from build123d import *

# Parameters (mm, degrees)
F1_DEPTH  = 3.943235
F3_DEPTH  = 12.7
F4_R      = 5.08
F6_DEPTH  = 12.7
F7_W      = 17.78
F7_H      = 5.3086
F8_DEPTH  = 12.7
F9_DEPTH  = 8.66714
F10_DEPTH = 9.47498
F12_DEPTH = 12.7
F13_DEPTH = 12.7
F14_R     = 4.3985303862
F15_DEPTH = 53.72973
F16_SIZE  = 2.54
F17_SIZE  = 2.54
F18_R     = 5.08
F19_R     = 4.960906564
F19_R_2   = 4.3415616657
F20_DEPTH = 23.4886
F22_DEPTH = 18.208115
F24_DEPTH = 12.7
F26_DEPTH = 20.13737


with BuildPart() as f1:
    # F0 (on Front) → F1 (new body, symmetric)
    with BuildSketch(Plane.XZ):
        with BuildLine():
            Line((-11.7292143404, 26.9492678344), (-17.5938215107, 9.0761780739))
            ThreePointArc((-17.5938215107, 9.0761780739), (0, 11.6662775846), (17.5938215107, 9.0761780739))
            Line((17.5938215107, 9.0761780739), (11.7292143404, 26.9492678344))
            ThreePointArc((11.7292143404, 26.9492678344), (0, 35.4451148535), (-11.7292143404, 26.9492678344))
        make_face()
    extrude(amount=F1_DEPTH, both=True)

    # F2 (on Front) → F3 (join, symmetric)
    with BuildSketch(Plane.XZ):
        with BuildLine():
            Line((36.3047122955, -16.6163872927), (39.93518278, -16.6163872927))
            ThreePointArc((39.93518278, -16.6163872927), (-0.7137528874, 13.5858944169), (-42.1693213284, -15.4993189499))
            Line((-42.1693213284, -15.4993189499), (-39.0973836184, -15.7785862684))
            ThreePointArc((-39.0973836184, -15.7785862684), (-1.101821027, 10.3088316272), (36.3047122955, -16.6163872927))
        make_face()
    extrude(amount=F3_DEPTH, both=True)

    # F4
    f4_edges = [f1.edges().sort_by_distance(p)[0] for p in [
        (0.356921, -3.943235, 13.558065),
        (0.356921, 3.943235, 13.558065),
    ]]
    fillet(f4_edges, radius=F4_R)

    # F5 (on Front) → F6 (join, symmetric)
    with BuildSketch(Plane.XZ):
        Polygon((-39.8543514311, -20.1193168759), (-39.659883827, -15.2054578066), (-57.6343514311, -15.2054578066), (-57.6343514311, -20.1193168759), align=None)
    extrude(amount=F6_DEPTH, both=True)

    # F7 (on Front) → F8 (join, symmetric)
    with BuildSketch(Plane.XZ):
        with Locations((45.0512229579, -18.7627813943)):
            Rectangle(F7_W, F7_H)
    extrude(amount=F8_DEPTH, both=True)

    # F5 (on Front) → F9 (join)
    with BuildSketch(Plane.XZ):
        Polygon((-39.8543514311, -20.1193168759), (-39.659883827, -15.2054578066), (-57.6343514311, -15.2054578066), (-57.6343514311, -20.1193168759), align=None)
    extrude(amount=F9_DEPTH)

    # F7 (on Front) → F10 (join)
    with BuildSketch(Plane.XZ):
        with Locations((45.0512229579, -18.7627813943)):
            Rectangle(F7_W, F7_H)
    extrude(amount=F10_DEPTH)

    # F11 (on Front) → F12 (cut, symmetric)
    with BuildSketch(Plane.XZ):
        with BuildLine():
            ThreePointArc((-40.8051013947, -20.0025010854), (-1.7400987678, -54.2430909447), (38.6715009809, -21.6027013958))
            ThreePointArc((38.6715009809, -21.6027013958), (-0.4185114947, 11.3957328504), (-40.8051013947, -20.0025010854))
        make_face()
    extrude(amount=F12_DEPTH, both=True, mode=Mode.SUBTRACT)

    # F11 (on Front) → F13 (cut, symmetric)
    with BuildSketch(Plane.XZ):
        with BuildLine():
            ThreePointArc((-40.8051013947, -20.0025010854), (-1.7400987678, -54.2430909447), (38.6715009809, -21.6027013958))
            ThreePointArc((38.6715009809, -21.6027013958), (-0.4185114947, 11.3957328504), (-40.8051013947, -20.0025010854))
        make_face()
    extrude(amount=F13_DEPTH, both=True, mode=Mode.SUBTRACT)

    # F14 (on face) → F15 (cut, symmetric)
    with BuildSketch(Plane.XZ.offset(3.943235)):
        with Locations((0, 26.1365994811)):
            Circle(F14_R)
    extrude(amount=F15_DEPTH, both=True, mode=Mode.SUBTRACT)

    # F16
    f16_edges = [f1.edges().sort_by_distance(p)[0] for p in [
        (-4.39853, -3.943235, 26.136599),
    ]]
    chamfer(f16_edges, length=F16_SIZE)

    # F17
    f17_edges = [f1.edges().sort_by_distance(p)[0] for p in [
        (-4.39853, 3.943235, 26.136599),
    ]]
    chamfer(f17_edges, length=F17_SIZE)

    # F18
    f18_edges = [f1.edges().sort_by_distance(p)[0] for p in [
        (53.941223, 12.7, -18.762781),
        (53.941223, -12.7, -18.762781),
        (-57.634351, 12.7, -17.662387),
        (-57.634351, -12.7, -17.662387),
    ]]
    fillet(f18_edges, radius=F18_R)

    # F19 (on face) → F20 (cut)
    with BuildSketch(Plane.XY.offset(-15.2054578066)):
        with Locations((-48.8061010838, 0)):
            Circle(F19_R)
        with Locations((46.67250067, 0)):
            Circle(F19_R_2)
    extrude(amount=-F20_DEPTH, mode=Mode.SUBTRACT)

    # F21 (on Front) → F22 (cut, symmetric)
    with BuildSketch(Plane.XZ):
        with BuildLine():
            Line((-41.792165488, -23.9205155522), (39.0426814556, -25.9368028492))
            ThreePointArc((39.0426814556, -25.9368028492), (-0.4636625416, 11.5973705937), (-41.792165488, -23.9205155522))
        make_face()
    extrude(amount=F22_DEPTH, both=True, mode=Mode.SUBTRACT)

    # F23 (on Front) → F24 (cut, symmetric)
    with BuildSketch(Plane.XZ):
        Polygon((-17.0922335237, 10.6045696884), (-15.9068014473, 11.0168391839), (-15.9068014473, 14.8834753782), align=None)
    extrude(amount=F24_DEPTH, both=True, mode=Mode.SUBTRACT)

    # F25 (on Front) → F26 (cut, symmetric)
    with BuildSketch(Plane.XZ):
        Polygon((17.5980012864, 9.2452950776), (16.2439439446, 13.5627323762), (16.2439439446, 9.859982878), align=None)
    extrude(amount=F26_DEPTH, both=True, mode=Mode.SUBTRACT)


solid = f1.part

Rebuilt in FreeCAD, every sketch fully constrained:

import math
import FreeCAD as App
import Part
import Sketcher

V = App.Vector
Q = App.Units.Quantity


def edges_at(feature, points):
    """Names of the edges that pass closest to the given points."""
    edges = feature.Shape.Edges
    near = lambda p: min(range(len(edges)), key=lambda i: edges[i].distToShape(Part.Vertex(*p))[0])
    return sorted({f"Edge{near(p) + 1}" for p in points})


def add_polygon(sketch, points):
    """Adds a closed chain of lines whose ends are joined by coincident constraints."""
    first, n = sketch.GeometryCount, len(points)
    for a, b in zip(points, points[1:] + points[:1]):
        sketch.addGeometry(Part.LineSegment(App.Vector(*a, 0), App.Vector(*b, 0)), False)
    for i in range(n):
        sketch.addConstraint(Sketcher.Constraint("Coincident", first + i, 2, first + (i + 1) % n, 1))

doc = App.newDocument("Part")
body = doc.addObject("PartDesign::Body", "Body")

sketch1 = doc.addObject("Sketcher::SketchObject", "Sketch")
body.addObject(sketch1)
sketch1.AttachmentSupport = (doc.XZ_Plane, [""])
sketch1.MapMode = "FlatFace"
sketch1.addGeometry([
    Part.LineSegment(V(-12, 27, 0), V(-18, 9, 0)),
    Part.ArcOfCircle(Part.Circle(V(0, -49, 0), V(0, 0, 1), 61), math.radians(73), math.radians(107)),
    Part.LineSegment(V(18, 9, 0), V(12, 27, 0)),
    Part.ArcOfCircle(Part.Circle(V(0, 23, 0), V(0, 0, 1), 12), math.radians(18), math.radians(162)),
], False)
sketch1.addConstraint([
    Sketcher.Constraint("Coincident", 0, 2, 1, 2),
    Sketcher.Constraint("Coincident", 1, 1, 2, 1),
    Sketcher.Constraint("Tangent", 2, 2, 3, 1),
    Sketcher.Constraint("Tangent", 3, 2, 0, 1),
    Sketcher.Constraint("Symmetric", 0, 2, 1, 1, -2),
    Sketcher.Constraint("PointOnObject", 3, 3, -2),
    Sketcher.Constraint("Radius", 1, Q("61.050004 mm")),
    Sketcher.Constraint("Radius", 3, Q("12.344495 mm")),
    Sketcher.Constraint("Distance", 0, Q("18.810661 mm")),
    Sketcher.Constraint("DistanceY", -1, 1, 3, 3, Q("23.10062 mm")),
    Sketcher.Constraint("DistanceX", 0, 2, -1, 1, Q("17.593822 mm")),
])
pad1 = doc.addObject("PartDesign::Pad", "Pad")
body.addObject(pad1)
pad1.Profile = sketch1
pad1.Length = 7.88647
pad1.Midplane = True

sketch2 = doc.addObject("Sketcher::SketchObject", "Sketch001")
body.addObject(sketch2)
sketch2.AttachmentSupport = (doc.XZ_Plane, [""])
sketch2.MapMode = "FlatFace"
sketch2.addGeometry([
    Part.LineSegment(V(36.3, -16.6, 0), V(39.9, -16.6, 0)),
    Part.ArcOfCircle(Part.Circle(V(-1.3, -29.7, 0), V(0, 0, 1), 43.3), math.radians(18), math.radians(161)),
    Part.LineSegment(V(-42.2, -15.5, 0), V(-39.1, -15.8, 0)),
    Part.ArcOfCircle(Part.Circle(V(-1.5, -29.8, 0), V(0, 0, 1), 40.1), math.radians(19), math.radians(160)),
], False)
sketch2.addConstraint([
    Sketcher.Constraint("Coincident", 0, 2, 1, 1),
    Sketcher.Constraint("Coincident", 1, 2, 2, 1),
    Sketcher.Constraint("Coincident", 2, 2, 3, 2),
    Sketcher.Constraint("Coincident", 3, 1, 0, 1),
    Sketcher.Constraint("Horizontal", 0),
    Sketcher.Constraint("Radius", 1, Q("43.251557 mm")),
    Sketcher.Constraint("Radius", 3, Q("40.067523 mm")),
    Sketcher.Constraint("DistanceX", 0, 1, 0, 2, Q("3.63047 mm")),
    Sketcher.Constraint("DistanceY", 3, 3, 1, 2, Q("14.256899 mm")),
    Sketcher.Constraint("DistanceY", 0, 2, 2, 2, Q("0.837801 mm")),
    Sketcher.Constraint("DistanceX", 3, 3, 3, 1, Q("37.851701 mm")),
    Sketcher.Constraint("DistanceY", 1, 3, -1, 1, Q("29.66166 mm")),
    Sketcher.Constraint("DistanceX", 3, 3, -1, 1, Q("1.546988 mm")),
    Sketcher.Constraint("DistanceY", 3, 3, -1, 1, Q("29.756218 mm")),
])
pad2 = doc.addObject("PartDesign::Pad", "Pad001")
body.addObject(pad2)
pad2.Profile = sketch2
pad2.Length = Q("1 in")
pad2.Midplane = True
doc.recompute()

fillet = doc.addObject("PartDesign::Fillet", "Fillet")
body.addObject(fillet)
fillet.Base = (pad2, edges_at(pad2, [(0.357, -3.943, 13.558), (0.357, 3.943, 13.558)]))
fillet.Radius = Q("0.2 in")

sketch3 = doc.addObject("Sketcher::SketchObject", "Sketch002")
body.addObject(sketch3)
sketch3.AttachmentSupport = (doc.XZ_Plane, [""])
sketch3.MapMode = "FlatFace"
add_polygon(sketch3, [(-39.9, -20.1), (-39.7, -15.2), (-57.6, -15.2), (-57.6, -20.1)])
sketch3.addConstraint([
    Sketcher.Constraint("Horizontal", 1),
    Sketcher.Constraint("Vertical", 2),
    Sketcher.Constraint("Horizontal", 3),
    Sketcher.Constraint("DistanceX", 3, 1, 3, 2, Q("0.7 in")),
    Sketcher.Constraint("DistanceY", 2, 2, 2, 1, Q("4.913859 mm")),
    Sketcher.Constraint("DistanceX", 1, 2, 1, 1, Q("17.974468 mm")),
    Sketcher.Constraint("DistanceX", 1, 2, -1, 1, Q("57.634351 mm")),
    Sketcher.Constraint("DistanceY", 0, 2, -1, 1, Q("15.205458 mm")),
])
pad3 = doc.addObject("PartDesign::Pad", "Pad002")
body.addObject(pad3)
pad3.Profile = sketch3
pad3.Length = Q("1 in")
pad3.Midplane = True

sketch4 = doc.addObject("Sketcher::SketchObject", "Sketch003")
body.addObject(sketch4)
sketch4.AttachmentSupport = (doc.XZ_Plane, [""])
sketch4.MapMode = "FlatFace"
add_polygon(sketch4, [(36, -16), (36, -21), (54, -21), (54, -16)])
sketch4.addConstraint([
    Sketcher.Constraint("Vertical", 0),
    Sketcher.Constraint("Horizontal", 1),
    Sketcher.Constraint("Vertical", 2),
    Sketcher.Constraint("Horizontal", 3),
    Sketcher.Constraint("DistanceX", 1, 1, 1, 2, Q("0.7 in")),
    Sketcher.Constraint("DistanceY", 0, 2, 0, 1, Q("0.209 in")),
    Sketcher.Constraint("DistanceY", 0, 2, -1, 1, Q("21.417081 mm")),
    Sketcher.Constraint("DistanceX", -1, 1, 0, 2, Q("36.161223 mm")),
])
pad4 = doc.addObject("PartDesign::Pad", "Pad003")
body.addObject(pad4)
pad4.Profile = sketch4
pad4.Length = Q("1 in")
pad4.Midplane = True

sketch5 = doc.addObject("Sketcher::SketchObject", "Sketch004")
body.addObject(sketch5)
sketch5.AttachmentSupport = (doc.XZ_Plane, [""])
sketch5.MapMode = "FlatFace"
add_polygon(sketch5, [(-39.9, -20.1), (-39.7, -15.2), (-57.6, -15.2), (-57.6, -20.1)])
sketch5.addConstraint([
    Sketcher.Constraint("Horizontal", 1),
    Sketcher.Constraint("Vertical", 2),
    Sketcher.Constraint("Horizontal", 3),
    Sketcher.Constraint("DistanceX", 3, 1, 3, 2, Q("0.7 in")),
    Sketcher.Constraint("DistanceY", 2, 2, 2, 1, Q("4.913859 mm")),
    Sketcher.Constraint("DistanceX", 1, 2, 1, 1, Q("17.974468 mm")),
    Sketcher.Constraint("DistanceX", 1, 2, -1, 1, Q("57.634351 mm")),
    Sketcher.Constraint("DistanceY", 0, 2, -1, 1, Q("15.205458 mm")),
])
pad5 = doc.addObject("PartDesign::Pad", "Pad004")
body.addObject(pad5)
pad5.Profile = sketch5
pad5.Length = 8.66714

sketch6 = doc.addObject("Sketcher::SketchObject", "Sketch005")
body.addObject(sketch6)
sketch6.AttachmentSupport = (doc.XZ_Plane, [""])
sketch6.MapMode = "FlatFace"
add_polygon(sketch6, [(36, -16), (36, -21), (54, -21), (54, -16)])
sketch6.addConstraint([
    Sketcher.Constraint("Vertical", 0),
    Sketcher.Constraint("Horizontal", 1),
    Sketcher.Constraint("Vertical", 2),
    Sketcher.Constraint("Horizontal", 3),
    Sketcher.Constraint("DistanceX", 1, 1, 1, 2, Q("0.7 in")),
    Sketcher.Constraint("DistanceY", 0, 2, 0, 1, Q("0.209 in")),
    Sketcher.Constraint("DistanceY", 0, 2, -1, 1, Q("21.417081 mm")),
    Sketcher.Constraint("DistanceX", -1, 1, 0, 2, Q("36.161223 mm")),
])
pad6 = doc.addObject("PartDesign::Pad", "Pad005")
body.addObject(pad6)
pad6.Profile = sketch6
pad6.Length = 9.47498

sketch7 = doc.addObject("Sketcher::SketchObject", "Sketch006")
body.addObject(sketch7)
sketch7.AttachmentSupport = (doc.XZ_Plane, [""])
sketch7.MapMode = "FlatFace"
sketch7.addGeometry([
    Part.ArcOfCircle(Part.Circle(V(-1, -14, 0), V(0, 0, 1), 40), math.radians(-171), math.radians(-11)),
    Part.ArcOfCircle(Part.Circle(V(-1, -29, 0), V(0, 0, 1), 41), math.radians(11), math.radians(167)),
], False)
sketch7.addConstraint([
    Sketcher.Constraint("Coincident", 0, 1, 1, 2),
    Sketcher.Constraint("Coincident", 1, 1, 0, 2),
    Sketcher.Constraint("Radius", 1, Q("40.629361 mm")),
    Sketcher.Constraint("DistanceX", 0, 1, 1, 1, Q("3.1290001 in")),
    Sketcher.Constraint("DistanceY", 1, 1, 0, 1, Q("0.063 in")),
    Sketcher.Constraint("DistanceX", 0, 1, -1, 1, Q("1.6065001 in")),
    Sketcher.Constraint("DistanceY", 0, 1, -1, 1, Q("0.7875 in")),
    Sketcher.Constraint("Radius", 0, Q("40.339505 mm")),
])
pocket1 = doc.addObject("PartDesign::Pocket", "Pocket")
body.addObject(pocket1)
pocket1.Profile = sketch7
pocket1.Length = Q("1 in")
pocket1.Midplane = True

sketch8 = doc.addObject("Sketcher::SketchObject", "Sketch007")
body.addObject(sketch8)
sketch8.AttachmentSupport = (doc.XZ_Plane, [""])
sketch8.MapMode = "FlatFace"
sketch8.addGeometry([
    Part.ArcOfCircle(Part.Circle(V(-1, -14, 0), V(0, 0, 1), 40), math.radians(-171), math.radians(-11)),
    Part.ArcOfCircle(Part.Circle(V(-1, -29, 0), V(0, 0, 1), 41), math.radians(11), math.radians(167)),
], False)
sketch8.addConstraint([
    Sketcher.Constraint("Coincident", 0, 1, 1, 2),
    Sketcher.Constraint("Coincident", 1, 1, 0, 2),
    Sketcher.Constraint("Radius", 1, Q("40.629361 mm")),
    Sketcher.Constraint("DistanceX", 0, 1, 1, 1, Q("3.1290001 in")),
    Sketcher.Constraint("DistanceY", 1, 1, 0, 1, Q("0.063 in")),
    Sketcher.Constraint("DistanceX", 0, 1, -1, 1, Q("1.6065001 in")),
    Sketcher.Constraint("DistanceY", 0, 1, -1, 1, Q("0.7875 in")),
    Sketcher.Constraint("Radius", 0, Q("40.339505 mm")),
])
pocket2 = doc.addObject("PartDesign::Pocket", "Pocket001")
body.addObject(pocket2)
pocket2.Profile = sketch8
pocket2.Length = Q("1 in")
pocket2.Midplane = True

sketch9 = doc.addObject("Sketcher::SketchObject", "Sketch008")
body.addObject(sketch9)
sketch9.AttachmentSupport = (doc.XZ_Plane, [""])
sketch9.MapMode = "FlatFace"
sketch9.AttachmentOffset = App.Placement(V(0, 0, 3.943235), App.Rotation())
sketch9.addGeometry(Part.Circle(V(0, 26.1, 0), V(0, 0, 1), 4.4), False)
sketch9.addConstraint([
    Sketcher.Constraint("PointOnObject", 0, 3, -2),
    Sketcher.Constraint("Diameter", 0, Q("8.797061 mm")),
    Sketcher.Constraint("DistanceY", -1, 1, 0, 3, Q("1.029 in")),
])
pocket3 = doc.addObject("PartDesign::Pocket", "Pocket002")
body.addObject(pocket3)
pocket3.Profile = sketch9
pocket3.Length = 107.45946
pocket3.Midplane = True
doc.recompute()

chamfer = doc.addObject("PartDesign::Chamfer", "Chamfer")
body.addObject(chamfer)
chamfer.Base = (pocket3, edges_at(pocket3, [(-4.399, -3.943, 26.137)]))
chamfer.Size = Q("0.1 in")
doc.recompute()

chamfer2 = doc.addObject("PartDesign::Chamfer", "Chamfer001")
body.addObject(chamfer2)
chamfer2.Base = (chamfer, edges_at(chamfer, [(-4.399, 3.943, 26.137)]))
chamfer2.Size = Q("0.1 in")
doc.recompute()

fillet2 = doc.addObject("PartDesign::Fillet", "Fillet001")
body.addObject(fillet2)
fillet2.Base = (chamfer2, edges_at(chamfer2, [
    (53.941, 12.7, -18.763),
    (53.941, -12.7, -18.763),
    (-57.634, 12.7, -17.662),
    (-57.634, -12.7, -17.662),
]))
fillet2.Radius = Q("0.2 in")

sketch10 = doc.addObject("Sketcher::SketchObject", "Sketch009")
body.addObject(sketch10)
sketch10.AttachmentSupport = (doc.XY_Plane, [""])
sketch10.MapMode = "FlatFace"
sketch10.AttachmentOffset = App.Placement(V(0, 0, -15.205458), App.Rotation())
sketch10.addGeometry([
    Part.Circle(V(-48.8, 0, 0), V(0, 0, 1), 5),
    Part.Circle(V(46.7, 0, 0), V(0, 0, 1), 4.3),
], False)
sketch10.addConstraint([
    Sketcher.Constraint("PointOnObject", 0, 3, -1),
    Sketcher.Constraint("PointOnObject", 1, 3, -1),
    Sketcher.Constraint("DistanceX", 0, 3, 1, 3, Q("3.7590001 in")),
    Sketcher.Constraint("Diameter", 0, Q("9.921813 mm")),
    Sketcher.Constraint("Diameter", 1, Q("8.683123 mm")),
    Sketcher.Constraint("DistanceX", 0, 3, -1, 1, Q("1.9215 in")),
])
pocket4 = doc.addObject("PartDesign::Pocket", "Pocket003")
body.addObject(pocket4)
pocket4.Profile = sketch10
pocket4.Length = 23.4886

sketch11 = doc.addObject("Sketcher::SketchObject", "Sketch010")
body.addObject(sketch11)
sketch11.AttachmentSupport = (doc.XZ_Plane, [""])
sketch11.MapMode = "FlatFace"
sketch11.addGeometry([
    Part.LineSegment(V(-42, -24, 0), V(39, -26, 0)),
    Part.ArcOfCircle(Part.Circle(V(-1, -29, 0), V(0, 0, 1), 41), math.radians(4), math.radians(173)),
], False)
sketch11.addConstraint([
    Sketcher.Constraint("Coincident", 0, 1, 1, 2),
    Sketcher.Constraint("Coincident", 1, 1, 0, 2),
    Sketcher.Constraint("Radius", 1, Q("40.637349 mm")),
    Sketcher.Constraint("Distance", 0, Q("80.859989 mm")),
    Sketcher.Constraint("DistanceX", -1, 1, 1, 1, Q("39.042681 mm")),
    Sketcher.Constraint("DistanceX", 0, 1, 1, 3, Q("40.315189 mm")),
    Sketcher.Constraint("DistanceY", 1, 3, -1, 1, Q("29.027343 mm")),
])
pocket5 = doc.addObject("PartDesign::Pocket", "Pocket004")
body.addObject(pocket5)
pocket5.Profile = sketch11
pocket5.Length = 36.41623
pocket5.Midplane = True

sketch12 = doc.addObject("Sketcher::SketchObject", "Sketch011")
body.addObject(sketch12)
sketch12.AttachmentSupport = (doc.XZ_Plane, [""])
sketch12.MapMode = "FlatFace"
add_polygon(sketch12, [(-17.1, 10.6), (-15.9, 11), (-15.9, 14.9)])
sketch12.addConstraint([
    Sketcher.Constraint("Vertical", 1),
    Sketcher.Constraint("DistanceX", 0, 2, -1, 1, Q("15.906801 mm")),
    Sketcher.Constraint("DistanceY", 1, 1, 1, 2, Q("3.866636 mm")),
    Sketcher.Constraint("DistanceY", -1, 1, 0, 2, Q("11.016839 mm")),
    Sketcher.Constraint("DistanceY", -1, 1, 2, 2, Q("10.60457 mm")),
    Sketcher.Constraint("Distance", 0, Q("1.255076 mm")),
])
pocket6 = doc.addObject("PartDesign::Pocket", "Pocket005")
body.addObject(pocket6)
pocket6.Profile = sketch12
pocket6.Length = Q("1 in")
pocket6.Midplane = True

sketch13 = doc.addObject("Sketcher::SketchObject", "Sketch012")
body.addObject(sketch13)
sketch13.AttachmentSupport = (doc.XZ_Plane, [""])
sketch13.MapMode = "FlatFace"
add_polygon(sketch13, [(17.6, 9.2), (16.2, 13.6), (16.2, 9.9)])
sketch13.addConstraint([
    Sketcher.Constraint("Vertical", 1),
    Sketcher.Constraint("DistanceY", 1, 2, 1, 1, Q("3.702749 mm")),
    Sketcher.Constraint("DistanceX", -1, 1, 2, 2, Q("17.598001 mm")),
    Sketcher.Constraint("Distance", 0, Q("4.524791 mm")),
    Sketcher.Constraint("Distance", 2, Q("1.487048 mm")),
    Sketcher.Constraint("DistanceY", -1, 1, 0, 2, Q("13.562732 mm")),
])
pocket7 = doc.addObject("PartDesign::Pocket", "Pocket006")
body.addObject(pocket7)
pocket7.Profile = sketch13
pocket7.Length = 40.27474
pocket7.Midplane = True

doc.recompute()
